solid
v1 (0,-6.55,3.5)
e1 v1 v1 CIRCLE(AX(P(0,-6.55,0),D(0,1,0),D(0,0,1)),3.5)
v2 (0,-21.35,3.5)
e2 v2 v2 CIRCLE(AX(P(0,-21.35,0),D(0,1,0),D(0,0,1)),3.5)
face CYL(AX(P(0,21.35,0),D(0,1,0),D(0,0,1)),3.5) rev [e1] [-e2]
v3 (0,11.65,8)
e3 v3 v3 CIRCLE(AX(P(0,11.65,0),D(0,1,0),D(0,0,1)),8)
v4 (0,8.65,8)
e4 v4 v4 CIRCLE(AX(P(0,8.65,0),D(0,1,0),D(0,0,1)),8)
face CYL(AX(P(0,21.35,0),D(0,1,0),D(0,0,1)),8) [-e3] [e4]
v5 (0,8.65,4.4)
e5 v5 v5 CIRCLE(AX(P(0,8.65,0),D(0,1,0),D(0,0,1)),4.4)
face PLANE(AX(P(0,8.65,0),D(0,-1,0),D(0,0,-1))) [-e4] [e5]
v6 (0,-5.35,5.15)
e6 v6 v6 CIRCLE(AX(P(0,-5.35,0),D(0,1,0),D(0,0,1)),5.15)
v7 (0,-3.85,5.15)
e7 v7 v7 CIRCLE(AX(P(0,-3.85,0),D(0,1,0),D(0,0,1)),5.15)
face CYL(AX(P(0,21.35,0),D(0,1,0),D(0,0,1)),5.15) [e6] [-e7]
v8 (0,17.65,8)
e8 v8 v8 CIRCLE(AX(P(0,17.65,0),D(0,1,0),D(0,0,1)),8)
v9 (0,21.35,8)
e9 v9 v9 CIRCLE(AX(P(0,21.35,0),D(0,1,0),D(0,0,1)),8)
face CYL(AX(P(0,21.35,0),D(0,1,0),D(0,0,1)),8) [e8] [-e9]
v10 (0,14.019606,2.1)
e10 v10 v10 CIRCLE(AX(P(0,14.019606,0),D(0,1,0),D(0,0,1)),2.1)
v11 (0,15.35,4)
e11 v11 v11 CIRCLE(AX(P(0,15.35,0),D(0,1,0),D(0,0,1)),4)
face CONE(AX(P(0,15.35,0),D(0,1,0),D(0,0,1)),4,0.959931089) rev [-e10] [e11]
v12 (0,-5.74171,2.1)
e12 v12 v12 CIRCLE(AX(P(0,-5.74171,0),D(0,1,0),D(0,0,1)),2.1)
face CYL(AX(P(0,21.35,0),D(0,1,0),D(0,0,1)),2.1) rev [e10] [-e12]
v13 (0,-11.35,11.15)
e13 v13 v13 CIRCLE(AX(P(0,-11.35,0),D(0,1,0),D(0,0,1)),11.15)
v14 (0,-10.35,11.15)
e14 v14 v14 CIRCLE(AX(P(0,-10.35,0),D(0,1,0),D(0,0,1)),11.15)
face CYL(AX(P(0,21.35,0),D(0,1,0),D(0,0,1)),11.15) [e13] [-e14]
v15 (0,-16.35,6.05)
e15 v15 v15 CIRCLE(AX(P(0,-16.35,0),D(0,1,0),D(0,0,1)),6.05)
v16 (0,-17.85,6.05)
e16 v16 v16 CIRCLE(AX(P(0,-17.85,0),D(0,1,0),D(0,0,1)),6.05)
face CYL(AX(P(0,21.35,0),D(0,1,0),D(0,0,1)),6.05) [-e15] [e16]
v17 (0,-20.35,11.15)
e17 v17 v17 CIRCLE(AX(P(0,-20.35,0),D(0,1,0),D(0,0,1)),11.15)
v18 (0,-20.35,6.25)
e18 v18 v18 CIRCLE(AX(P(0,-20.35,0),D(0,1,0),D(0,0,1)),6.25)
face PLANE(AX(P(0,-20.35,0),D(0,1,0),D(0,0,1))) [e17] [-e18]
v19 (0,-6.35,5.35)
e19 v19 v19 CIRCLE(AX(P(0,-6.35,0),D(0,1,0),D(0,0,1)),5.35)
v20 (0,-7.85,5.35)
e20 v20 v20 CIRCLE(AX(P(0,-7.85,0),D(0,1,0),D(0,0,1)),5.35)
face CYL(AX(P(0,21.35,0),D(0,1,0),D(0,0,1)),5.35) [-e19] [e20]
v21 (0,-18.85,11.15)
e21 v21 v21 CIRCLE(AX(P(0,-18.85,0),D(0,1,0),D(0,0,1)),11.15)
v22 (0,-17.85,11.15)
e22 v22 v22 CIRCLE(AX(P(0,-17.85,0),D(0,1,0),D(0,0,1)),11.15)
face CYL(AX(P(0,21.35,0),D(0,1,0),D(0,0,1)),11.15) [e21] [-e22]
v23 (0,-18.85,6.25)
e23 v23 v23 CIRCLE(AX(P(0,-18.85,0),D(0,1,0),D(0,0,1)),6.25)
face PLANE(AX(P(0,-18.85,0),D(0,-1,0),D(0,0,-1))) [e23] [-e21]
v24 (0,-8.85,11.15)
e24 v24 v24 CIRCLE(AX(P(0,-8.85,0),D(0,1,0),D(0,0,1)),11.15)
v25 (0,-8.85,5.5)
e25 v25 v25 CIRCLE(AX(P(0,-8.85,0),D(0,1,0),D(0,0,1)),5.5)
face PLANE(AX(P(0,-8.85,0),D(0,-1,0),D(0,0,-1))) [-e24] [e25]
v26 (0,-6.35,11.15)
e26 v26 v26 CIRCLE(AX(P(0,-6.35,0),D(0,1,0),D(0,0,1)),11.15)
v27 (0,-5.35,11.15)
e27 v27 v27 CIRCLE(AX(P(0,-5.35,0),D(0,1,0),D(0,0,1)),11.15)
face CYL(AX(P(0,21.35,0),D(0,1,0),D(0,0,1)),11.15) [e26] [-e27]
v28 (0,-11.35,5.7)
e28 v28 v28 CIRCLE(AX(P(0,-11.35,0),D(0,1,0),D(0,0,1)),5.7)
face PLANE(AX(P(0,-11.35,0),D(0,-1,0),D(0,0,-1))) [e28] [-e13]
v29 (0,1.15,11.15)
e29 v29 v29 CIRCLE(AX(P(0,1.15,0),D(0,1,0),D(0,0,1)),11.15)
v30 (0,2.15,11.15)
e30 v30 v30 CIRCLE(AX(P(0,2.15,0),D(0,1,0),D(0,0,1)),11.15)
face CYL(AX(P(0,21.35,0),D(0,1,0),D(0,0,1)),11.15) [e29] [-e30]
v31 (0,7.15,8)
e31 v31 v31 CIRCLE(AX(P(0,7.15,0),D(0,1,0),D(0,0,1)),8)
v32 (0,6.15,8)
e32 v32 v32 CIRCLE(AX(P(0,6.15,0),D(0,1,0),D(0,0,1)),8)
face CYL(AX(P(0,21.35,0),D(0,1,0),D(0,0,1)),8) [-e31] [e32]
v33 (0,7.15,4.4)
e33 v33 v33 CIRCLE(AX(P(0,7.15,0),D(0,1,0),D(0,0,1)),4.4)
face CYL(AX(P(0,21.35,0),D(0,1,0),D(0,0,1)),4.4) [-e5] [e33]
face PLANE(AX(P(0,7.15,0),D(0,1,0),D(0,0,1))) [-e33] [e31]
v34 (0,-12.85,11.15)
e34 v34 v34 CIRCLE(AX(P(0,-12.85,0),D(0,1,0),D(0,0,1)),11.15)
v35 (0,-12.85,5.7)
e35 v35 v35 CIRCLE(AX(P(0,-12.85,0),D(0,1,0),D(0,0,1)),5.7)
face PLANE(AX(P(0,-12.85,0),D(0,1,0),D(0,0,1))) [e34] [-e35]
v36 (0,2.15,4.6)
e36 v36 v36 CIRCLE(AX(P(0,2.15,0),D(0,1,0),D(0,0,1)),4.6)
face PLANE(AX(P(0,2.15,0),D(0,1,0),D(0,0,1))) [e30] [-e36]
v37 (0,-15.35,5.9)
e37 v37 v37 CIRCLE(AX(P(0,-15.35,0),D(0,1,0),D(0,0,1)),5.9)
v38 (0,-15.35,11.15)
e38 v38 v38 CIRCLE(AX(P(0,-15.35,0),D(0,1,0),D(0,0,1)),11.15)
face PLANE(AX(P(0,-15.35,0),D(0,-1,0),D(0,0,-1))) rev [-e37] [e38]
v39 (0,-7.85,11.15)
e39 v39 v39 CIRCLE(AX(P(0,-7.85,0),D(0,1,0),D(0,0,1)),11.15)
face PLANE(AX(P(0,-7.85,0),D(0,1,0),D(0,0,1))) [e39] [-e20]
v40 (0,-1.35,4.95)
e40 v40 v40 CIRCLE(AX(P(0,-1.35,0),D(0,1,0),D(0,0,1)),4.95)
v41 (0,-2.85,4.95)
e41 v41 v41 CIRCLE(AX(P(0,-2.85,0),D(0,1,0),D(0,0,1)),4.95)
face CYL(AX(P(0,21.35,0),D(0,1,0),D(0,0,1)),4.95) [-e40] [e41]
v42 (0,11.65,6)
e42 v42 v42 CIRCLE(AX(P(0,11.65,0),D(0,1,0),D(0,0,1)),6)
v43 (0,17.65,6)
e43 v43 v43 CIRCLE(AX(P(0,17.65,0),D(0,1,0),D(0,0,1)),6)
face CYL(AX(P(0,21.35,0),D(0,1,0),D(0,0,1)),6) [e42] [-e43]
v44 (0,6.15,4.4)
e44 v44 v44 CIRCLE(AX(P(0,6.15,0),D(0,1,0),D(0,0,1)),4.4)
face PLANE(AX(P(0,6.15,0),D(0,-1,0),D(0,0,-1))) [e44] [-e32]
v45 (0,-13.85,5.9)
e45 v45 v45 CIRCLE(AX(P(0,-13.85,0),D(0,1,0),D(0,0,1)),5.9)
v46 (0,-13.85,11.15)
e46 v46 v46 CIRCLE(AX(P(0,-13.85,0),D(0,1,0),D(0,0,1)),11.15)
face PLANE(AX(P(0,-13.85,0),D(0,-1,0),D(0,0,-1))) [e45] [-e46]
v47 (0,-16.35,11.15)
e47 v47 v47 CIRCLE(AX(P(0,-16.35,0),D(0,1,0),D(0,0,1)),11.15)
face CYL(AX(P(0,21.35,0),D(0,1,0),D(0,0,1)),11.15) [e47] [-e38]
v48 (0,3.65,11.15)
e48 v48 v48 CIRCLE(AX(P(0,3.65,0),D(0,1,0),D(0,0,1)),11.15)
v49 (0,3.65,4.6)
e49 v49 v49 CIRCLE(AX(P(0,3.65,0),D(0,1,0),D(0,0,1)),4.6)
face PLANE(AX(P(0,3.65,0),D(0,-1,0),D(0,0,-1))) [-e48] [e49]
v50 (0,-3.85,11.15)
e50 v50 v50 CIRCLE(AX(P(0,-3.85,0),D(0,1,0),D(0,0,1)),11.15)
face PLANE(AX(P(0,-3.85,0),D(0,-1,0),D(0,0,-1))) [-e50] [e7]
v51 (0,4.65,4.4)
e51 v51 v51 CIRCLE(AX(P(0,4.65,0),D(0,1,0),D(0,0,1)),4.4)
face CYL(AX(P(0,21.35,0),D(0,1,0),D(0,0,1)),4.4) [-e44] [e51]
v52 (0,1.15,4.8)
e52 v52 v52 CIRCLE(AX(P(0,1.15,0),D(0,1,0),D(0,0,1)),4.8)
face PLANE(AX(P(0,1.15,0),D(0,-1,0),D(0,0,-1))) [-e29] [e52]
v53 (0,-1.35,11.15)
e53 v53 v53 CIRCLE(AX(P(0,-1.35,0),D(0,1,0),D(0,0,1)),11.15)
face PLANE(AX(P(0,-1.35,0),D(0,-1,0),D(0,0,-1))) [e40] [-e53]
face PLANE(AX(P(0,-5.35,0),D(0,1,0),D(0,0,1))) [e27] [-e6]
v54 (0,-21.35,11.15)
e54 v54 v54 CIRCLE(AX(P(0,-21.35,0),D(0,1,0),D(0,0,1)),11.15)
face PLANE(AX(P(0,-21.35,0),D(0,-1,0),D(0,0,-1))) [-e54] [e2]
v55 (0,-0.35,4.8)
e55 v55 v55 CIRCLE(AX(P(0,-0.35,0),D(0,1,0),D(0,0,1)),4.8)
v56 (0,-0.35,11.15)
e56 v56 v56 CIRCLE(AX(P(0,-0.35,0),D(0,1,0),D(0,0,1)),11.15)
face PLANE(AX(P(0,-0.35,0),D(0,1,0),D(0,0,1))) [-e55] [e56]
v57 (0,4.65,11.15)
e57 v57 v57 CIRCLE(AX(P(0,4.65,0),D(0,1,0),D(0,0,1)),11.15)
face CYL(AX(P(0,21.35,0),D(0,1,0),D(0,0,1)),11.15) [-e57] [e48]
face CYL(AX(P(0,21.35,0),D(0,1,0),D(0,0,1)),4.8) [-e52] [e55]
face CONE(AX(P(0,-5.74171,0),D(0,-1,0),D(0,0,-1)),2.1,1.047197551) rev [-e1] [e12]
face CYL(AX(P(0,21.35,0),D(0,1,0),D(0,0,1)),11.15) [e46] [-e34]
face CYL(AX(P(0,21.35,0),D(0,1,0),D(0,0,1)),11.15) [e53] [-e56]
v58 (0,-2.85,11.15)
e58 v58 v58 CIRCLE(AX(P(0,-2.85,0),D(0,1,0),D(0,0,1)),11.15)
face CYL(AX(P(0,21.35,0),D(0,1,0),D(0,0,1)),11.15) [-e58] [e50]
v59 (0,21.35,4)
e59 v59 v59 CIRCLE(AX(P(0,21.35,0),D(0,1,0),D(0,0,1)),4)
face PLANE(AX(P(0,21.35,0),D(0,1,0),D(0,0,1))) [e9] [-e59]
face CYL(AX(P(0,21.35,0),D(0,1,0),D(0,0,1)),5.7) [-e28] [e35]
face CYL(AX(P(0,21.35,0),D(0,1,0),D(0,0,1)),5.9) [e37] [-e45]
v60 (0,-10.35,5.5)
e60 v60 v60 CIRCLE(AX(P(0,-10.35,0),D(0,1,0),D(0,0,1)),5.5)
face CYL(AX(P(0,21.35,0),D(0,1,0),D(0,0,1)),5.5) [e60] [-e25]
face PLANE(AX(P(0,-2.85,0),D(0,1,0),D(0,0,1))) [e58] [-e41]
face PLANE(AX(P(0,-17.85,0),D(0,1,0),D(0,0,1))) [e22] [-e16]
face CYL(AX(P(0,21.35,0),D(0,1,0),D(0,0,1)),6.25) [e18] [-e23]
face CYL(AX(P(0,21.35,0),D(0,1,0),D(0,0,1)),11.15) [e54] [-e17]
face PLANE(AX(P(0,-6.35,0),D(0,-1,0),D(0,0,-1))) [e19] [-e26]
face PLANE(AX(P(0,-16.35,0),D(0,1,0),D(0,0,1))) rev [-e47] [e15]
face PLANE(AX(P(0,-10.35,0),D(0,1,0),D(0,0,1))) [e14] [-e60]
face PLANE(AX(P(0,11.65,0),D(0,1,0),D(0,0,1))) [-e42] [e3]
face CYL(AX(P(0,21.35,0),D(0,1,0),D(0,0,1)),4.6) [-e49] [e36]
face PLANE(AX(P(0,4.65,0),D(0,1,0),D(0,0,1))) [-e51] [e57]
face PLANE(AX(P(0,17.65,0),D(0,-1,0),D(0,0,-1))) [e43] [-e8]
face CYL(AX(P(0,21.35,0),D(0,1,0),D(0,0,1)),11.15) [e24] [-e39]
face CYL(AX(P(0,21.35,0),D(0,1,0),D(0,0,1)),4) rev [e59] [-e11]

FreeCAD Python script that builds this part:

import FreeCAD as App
import Part
import Sketcher
Q = App.Units.Quantity


def add_polygon(sketch, points):
    """Adds a closed chain of lines whose ends are joined by coincident constraints."""
    first, n = sketch.GeometryCount, len(points)
    for a, b in zip(points, points[1:] + points[:1]):
        sketch.addGeometry(Part.LineSegment(App.Vector(*a, 0), App.Vector(*b, 0)), False)
    for i in range(n):
        sketch.addConstraint(Sketcher.Constraint("Coincident", first + i, 2, first + (i + 1) % n, 1))

doc = App.newDocument("Part")
body = doc.addObject("PartDesign::Body", "Body")

sketch1 = body.newObject("Sketcher::SketchObject", "Sketch")
sketch1.AttachmentSupport = (doc.getObject("XY_Plane"), [""])
sketch1.MapMode = "FlatFace"
add_polygon(sketch1, [(8, 21.4), (4, 21.4), (4, 15.3), (2.1, 14), (2.1, -5.7), (3.5, -6.5), (3.5, -21.4), (11.2, -21.4), (11.2, -20.4), (6.2, -20.4), (6.2, -18.9), (11.2, -18.9), (11.2, -17.9), (6, -17.9), (6, -16.4), (11.2, -16.4), (11.2, -15.3), (5.9, -15.3), (5.9, -13.8), (11.2, -13.8), (11.2, -12.8), (5.7, -12.8), (5.7, -11.3), (11.2, -11.3), (11.2, -10.3), (5.5, -10.3), (5.5, -8.8), (11.2, -8.8), (11.2, -7.8), (5.3, -7.8), (5.3, -6.3), (11.2, -6.3), (11.2, -5.3), (5.2, -5.3), (5.2, -3.9), (11.2, -3.9), (11.2, -2.9), (5, -2.9), (5, -1.4), (11.2, -1.4), (11.2, -0.3), (4.8, -0.3), (4.8, 1.1), (11.2, 1.1), (11.2, 2.1), (4.6, 2.1), (4.6, 3.6), (11.2, 3.6), (11.2, 4.7), (4.4, 4.7), (4.4, 6.2), (8, 6.2), (8, 7.2), (4.4, 7.2), (4.4, 8.7), (8, 8.7), (8, 11.7), (6, 11.7), (6, 17.6), (8, 17.6)])
sketch1.addConstraint([
    Sketcher.Constraint("Horizontal", 0),
    Sketcher.Constraint("Vertical", 1),
    Sketcher.Constraint("Vertical", 3),
    Sketcher.Constraint("Vertical", 5),
    Sketcher.Constraint("Horizontal", 6),
    Sketcher.Constraint("Vertical", 7),
    Sketcher.Constraint("Horizontal", 8),
    Sketcher.Constraint("Vertical", 9),
    Sketcher.Constraint("Horizontal", 10),
    Sketcher.Constraint("Vertical", 11),
    Sketcher.Constraint("Horizontal", 12),
    Sketcher.Constraint("Vertical", 13),
    Sketcher.Constraint("Horizontal", 14),
    Sketcher.Constraint("Vertical", 15),
    Sketcher.Constraint("Horizontal", 16),
    Sketcher.Constraint("Vertical", 17),
    Sketcher.Constraint("Horizontal", 18),
    Sketcher.Constraint("Vertical", 19),
    Sketcher.Constraint("Horizontal", 20),
    Sketcher.Constraint("Vertical", 21),
    Sketcher.Constraint("Horizontal", 22),
    Sketcher.Constraint("Vertical", 23),
    Sketcher.Constraint("Horizontal", 24),
    Sketcher.Constraint("Vertical", 25),
    Sketcher.Constraint("Horizontal", 26),
    Sketcher.Constraint("Vertical", 27),
    Sketcher.Constraint("Horizontal", 28),
    Sketcher.Constraint("Vertical", 29),
    Sketcher.Constraint("Horizontal", 30),
    Sketcher.Constraint("Vertical", 31),
    Sketcher.Constraint("Horizontal", 32),
    Sketcher.Constraint("Vertical", 33),
    Sketcher.Constraint("Horizontal", 34),
    Sketcher.Constraint("Vertical", 35),
    Sketcher.Constraint("Horizontal", 36),
    Sketcher.Constraint("Vertical", 37),
    Sketcher.Constraint("Horizontal", 38),
    Sketcher.Constraint("Vertical", 39),
    Sketcher.Constraint("Horizontal", 40),
    Sketcher.Constraint("Vertical", 41),
    Sketcher.Constraint("Horizontal", 42),
    Sketcher.Constraint("Vertical", 43),
    Sketcher.Constraint("Horizontal", 44),
    Sketcher.Constraint("Vertical", 45),
    Sketcher.Constraint("Horizontal", 46),
    Sketcher.Constraint("Vertical", 47),
    Sketcher.Constraint("Horizontal", 48),
    Sketcher.Constraint("Vertical", 49),
    Sketcher.Constraint("Horizontal", 50),
    Sketcher.Constraint("Vertical", 51),
    Sketcher.Constraint("Horizontal", 52),
    Sketcher.Constraint("Vertical", 53),
    Sketcher.Constraint("Horizontal", 54),
    Sketcher.Constraint("Vertical", 55),
    Sketcher.Constraint("Horizontal", 56),
    Sketcher.Constraint("Vertical", 57),
    Sketcher.Constraint("Horizontal", 58),
    Sketcher.Constraint("Vertical", 59),
    Sketcher.Constraint("Vertical", 7, 2, 10, 2),
    Sketcher.Constraint("Vertical", 11, 2, 14, 2),
    Sketcher.Constraint("Vertical", 15, 2, 18, 2),
    Sketcher.Constraint("Vertical", 19, 2, 22, 2),
    Sketcher.Constraint("Vertical", 23, 2, 26, 2),
    Sketcher.Constraint("Vertical", 27, 2, 30, 2),
    Sketcher.Constraint("Vertical", 31, 2, 34, 2),
    Sketcher.Constraint("Vertical", 35, 2, 38, 2),
    Sketcher.Constraint("Vertical", 39, 2, 42, 2),
    Sketcher.Constraint("Vertical", 43, 2, 46, 2),
    Sketcher.Constraint("Vertical", 49, 2, 52, 2),
    Sketcher.Constraint("Vertical", 51, 2, 54, 2),
    Sketcher.Constraint("Vertical", 55, 2, 58, 2),
    Sketcher.Constraint("Equal", 34, 1),
    Sketcher.Constraint("Equal", 7, 11),
    Sketcher.Constraint("Equal", 9, 13),
    Sketcher.Constraint("Equal", 11, 15),
    Sketcher.Constraint("Equal", 13, 17),
    Sketcher.Constraint("Equal", 15, 19),
    Sketcher.Constraint("Equal", 17, 21),
    Sketcher.Constraint("Equal", 19, 23),
    Sketcher.Constraint("Equal", 21, 25),
    Sketcher.Constraint("Equal", 23, 27),
    Sketcher.Constraint("Equal", 25, 29),
    Sketcher.Constraint("Equal", 27, 31),
    Sketcher.Constraint("Equal", 29, 33),
    Sketcher.Constraint("Equal", 31, 35),
    Sketcher.Constraint("Equal", 33, 37),
    Sketcher.Constraint("Equal", 35, 39),
    Sketcher.Constraint("Equal", 37, 41),
    Sketcher.Constraint("Equal", 39, 43),
    Sketcher.Constraint("Equal", 41, 45),
    Sketcher.Constraint("Equal", 43, 47),
    Sketcher.Constraint("Equal", 45, 49),
    Sketcher.Constraint("Equal", 47, 51),
    Sketcher.Constraint("Equal", 49, 53),
    Sketcher.Constraint("Equal", 1, 57),
    Sketcher.Constraint("DistanceX", 0, 2, 0, 1, Q("4 mm")),
    Sketcher.Constraint("DistanceX", 32, 2, 32, 1, Q("6 mm")),
    Sketcher.Constraint("DistanceX", 56, 2, 56, 1, Q("2 mm")),
    Sketcher.Constraint("DistanceY", 7, 1, 7, 2, Q("1 mm")),
    Sketcher.Constraint("DistanceY", 55, 1, 55, 2, Q("3 mm")),
    Sketcher.Constraint("Angle", 2, Q("-145 deg")),
    Sketcher.Constraint("Angle", 4, Q("-30 deg")),
    Sketcher.Constraint("DistanceX", 8, 2, 8, 1, Q("4.9 mm")),
    Sketcher.Constraint("DistanceX", 12, 2, 12, 1, Q("5.1 mm")),
    Sketcher.Constraint("DistanceX", 28, 2, 28, 1, Q("5.8 mm")),
    Sketcher.Constraint("DistanceX", 36, 2, 36, 1, Q("6.2 mm")),
    Sketcher.Constraint("DistanceX", 50, 1, 50, 2, Q("3.6 mm")),
    Sketcher.Constraint("DistanceY", 5, 2, 5, 1, Q("14.8 mm")),
    Sketcher.Constraint("DistanceY", 9, 1, 9, 2, Q("1.5 mm")),
    Sketcher.Constraint("DistanceY", 59, 1, 59, 2, Q("3.7 mm")),
    Sketcher.Constraint("DistanceX", -1, 1, 0, 2, Q("4 mm")),
    Sketcher.Constraint("DistanceX", 4, 2, 24, 2, Q("2 mm")),
    Sketcher.Constraint("DistanceX", 6, 1, 6, 2, Q("7.65 mm")),
    Sketcher.Constraint("DistanceX", 16, 2, 16, 1, Q("5.25 mm")),
    Sketcher.Constraint("DistanceX", 20, 2, 20, 1, Q("5.45 mm")),
    Sketcher.Constraint("DistanceX", 40, 2, 40, 1, Q("6.35 mm")),
    Sketcher.Constraint("DistanceX", 44, 2, 44, 1, Q("6.55 mm")),
    Sketcher.Constraint("DistanceX", 48, 2, 48, 1, Q("6.75 mm")),
    Sketcher.Constraint("DistanceX", -1, 1, 2, 2, Q("2.1 mm")),
    Sketcher.Constraint("DistanceY", -1, 1, 0, 2, Q("21.35 mm")),
])
revolution = body.newObject("PartDesign::Revolution", "Revolution")
revolution.Profile = sketch1
revolution.ReferenceAxis = (sketch1, ["V_Axis"])
revolution.Angle = 360

doc.recompute()
